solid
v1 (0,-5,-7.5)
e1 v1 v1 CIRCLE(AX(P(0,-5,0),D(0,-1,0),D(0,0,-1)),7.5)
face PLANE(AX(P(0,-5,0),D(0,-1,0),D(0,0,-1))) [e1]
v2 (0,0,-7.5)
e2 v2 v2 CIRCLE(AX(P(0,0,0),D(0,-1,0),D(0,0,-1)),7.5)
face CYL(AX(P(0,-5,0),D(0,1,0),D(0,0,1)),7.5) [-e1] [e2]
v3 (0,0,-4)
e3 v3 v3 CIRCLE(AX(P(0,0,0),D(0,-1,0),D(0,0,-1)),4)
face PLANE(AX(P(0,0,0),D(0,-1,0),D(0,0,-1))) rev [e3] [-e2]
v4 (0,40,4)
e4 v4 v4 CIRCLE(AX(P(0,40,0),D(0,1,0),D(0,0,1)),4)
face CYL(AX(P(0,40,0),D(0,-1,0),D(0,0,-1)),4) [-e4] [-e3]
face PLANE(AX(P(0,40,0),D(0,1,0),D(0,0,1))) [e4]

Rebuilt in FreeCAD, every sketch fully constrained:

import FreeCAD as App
import Part
import Sketcher
from FreeCAD import Vector

doc = App.newDocument("Part")
body = doc.addObject("PartDesign::Body", "Body")

sketch1 = doc.addObject("Sketcher::SketchObject", "Sketch")
body.addObject(sketch1)
sketch1.AttachmentSupport = (doc.XZ_Plane, [""])
sketch1.MapMode = "FlatFace"
sketch1.addGeometry(Part.Circle(Vector(0, 0, 0), Vector(0, 0, 1), 4), False)
sketch1.addConstraint(Sketcher.Constraint("Coincident", 0, 3, -1, 1))
sketch1.addConstraint(Sketcher.Constraint("Diameter", 0, 8.0))
pad1 = doc.addObject("PartDesign::Pad", "Pad")
body.addObject(pad1)
pad1.Profile = sketch1
pad1.Length = 40
pad1.Reversed = True

sketch2 = doc.addObject("Sketcher::SketchObject", "Sketch001")
body.addObject(sketch2)
sketch2.AttachmentSupport = (doc.XZ_Plane, [""])
sketch2.MapMode = "FlatFace"
sketch2.addGeometry(Part.Circle(Vector(0, 0, 0), Vector(0, 0, 1), 7.5), False)
sketch2.addConstraint(Sketcher.Constraint("Coincident", 0, 3, -1, 1))
sketch2.addConstraint(Sketcher.Constraint("Diameter", 0, 15.0))
pad2 = doc.addObject("PartDesign::Pad", "Pad001")
body.addObject(pad2)
pad2.Profile = sketch2
pad2.Length = 5

doc.recompute()
